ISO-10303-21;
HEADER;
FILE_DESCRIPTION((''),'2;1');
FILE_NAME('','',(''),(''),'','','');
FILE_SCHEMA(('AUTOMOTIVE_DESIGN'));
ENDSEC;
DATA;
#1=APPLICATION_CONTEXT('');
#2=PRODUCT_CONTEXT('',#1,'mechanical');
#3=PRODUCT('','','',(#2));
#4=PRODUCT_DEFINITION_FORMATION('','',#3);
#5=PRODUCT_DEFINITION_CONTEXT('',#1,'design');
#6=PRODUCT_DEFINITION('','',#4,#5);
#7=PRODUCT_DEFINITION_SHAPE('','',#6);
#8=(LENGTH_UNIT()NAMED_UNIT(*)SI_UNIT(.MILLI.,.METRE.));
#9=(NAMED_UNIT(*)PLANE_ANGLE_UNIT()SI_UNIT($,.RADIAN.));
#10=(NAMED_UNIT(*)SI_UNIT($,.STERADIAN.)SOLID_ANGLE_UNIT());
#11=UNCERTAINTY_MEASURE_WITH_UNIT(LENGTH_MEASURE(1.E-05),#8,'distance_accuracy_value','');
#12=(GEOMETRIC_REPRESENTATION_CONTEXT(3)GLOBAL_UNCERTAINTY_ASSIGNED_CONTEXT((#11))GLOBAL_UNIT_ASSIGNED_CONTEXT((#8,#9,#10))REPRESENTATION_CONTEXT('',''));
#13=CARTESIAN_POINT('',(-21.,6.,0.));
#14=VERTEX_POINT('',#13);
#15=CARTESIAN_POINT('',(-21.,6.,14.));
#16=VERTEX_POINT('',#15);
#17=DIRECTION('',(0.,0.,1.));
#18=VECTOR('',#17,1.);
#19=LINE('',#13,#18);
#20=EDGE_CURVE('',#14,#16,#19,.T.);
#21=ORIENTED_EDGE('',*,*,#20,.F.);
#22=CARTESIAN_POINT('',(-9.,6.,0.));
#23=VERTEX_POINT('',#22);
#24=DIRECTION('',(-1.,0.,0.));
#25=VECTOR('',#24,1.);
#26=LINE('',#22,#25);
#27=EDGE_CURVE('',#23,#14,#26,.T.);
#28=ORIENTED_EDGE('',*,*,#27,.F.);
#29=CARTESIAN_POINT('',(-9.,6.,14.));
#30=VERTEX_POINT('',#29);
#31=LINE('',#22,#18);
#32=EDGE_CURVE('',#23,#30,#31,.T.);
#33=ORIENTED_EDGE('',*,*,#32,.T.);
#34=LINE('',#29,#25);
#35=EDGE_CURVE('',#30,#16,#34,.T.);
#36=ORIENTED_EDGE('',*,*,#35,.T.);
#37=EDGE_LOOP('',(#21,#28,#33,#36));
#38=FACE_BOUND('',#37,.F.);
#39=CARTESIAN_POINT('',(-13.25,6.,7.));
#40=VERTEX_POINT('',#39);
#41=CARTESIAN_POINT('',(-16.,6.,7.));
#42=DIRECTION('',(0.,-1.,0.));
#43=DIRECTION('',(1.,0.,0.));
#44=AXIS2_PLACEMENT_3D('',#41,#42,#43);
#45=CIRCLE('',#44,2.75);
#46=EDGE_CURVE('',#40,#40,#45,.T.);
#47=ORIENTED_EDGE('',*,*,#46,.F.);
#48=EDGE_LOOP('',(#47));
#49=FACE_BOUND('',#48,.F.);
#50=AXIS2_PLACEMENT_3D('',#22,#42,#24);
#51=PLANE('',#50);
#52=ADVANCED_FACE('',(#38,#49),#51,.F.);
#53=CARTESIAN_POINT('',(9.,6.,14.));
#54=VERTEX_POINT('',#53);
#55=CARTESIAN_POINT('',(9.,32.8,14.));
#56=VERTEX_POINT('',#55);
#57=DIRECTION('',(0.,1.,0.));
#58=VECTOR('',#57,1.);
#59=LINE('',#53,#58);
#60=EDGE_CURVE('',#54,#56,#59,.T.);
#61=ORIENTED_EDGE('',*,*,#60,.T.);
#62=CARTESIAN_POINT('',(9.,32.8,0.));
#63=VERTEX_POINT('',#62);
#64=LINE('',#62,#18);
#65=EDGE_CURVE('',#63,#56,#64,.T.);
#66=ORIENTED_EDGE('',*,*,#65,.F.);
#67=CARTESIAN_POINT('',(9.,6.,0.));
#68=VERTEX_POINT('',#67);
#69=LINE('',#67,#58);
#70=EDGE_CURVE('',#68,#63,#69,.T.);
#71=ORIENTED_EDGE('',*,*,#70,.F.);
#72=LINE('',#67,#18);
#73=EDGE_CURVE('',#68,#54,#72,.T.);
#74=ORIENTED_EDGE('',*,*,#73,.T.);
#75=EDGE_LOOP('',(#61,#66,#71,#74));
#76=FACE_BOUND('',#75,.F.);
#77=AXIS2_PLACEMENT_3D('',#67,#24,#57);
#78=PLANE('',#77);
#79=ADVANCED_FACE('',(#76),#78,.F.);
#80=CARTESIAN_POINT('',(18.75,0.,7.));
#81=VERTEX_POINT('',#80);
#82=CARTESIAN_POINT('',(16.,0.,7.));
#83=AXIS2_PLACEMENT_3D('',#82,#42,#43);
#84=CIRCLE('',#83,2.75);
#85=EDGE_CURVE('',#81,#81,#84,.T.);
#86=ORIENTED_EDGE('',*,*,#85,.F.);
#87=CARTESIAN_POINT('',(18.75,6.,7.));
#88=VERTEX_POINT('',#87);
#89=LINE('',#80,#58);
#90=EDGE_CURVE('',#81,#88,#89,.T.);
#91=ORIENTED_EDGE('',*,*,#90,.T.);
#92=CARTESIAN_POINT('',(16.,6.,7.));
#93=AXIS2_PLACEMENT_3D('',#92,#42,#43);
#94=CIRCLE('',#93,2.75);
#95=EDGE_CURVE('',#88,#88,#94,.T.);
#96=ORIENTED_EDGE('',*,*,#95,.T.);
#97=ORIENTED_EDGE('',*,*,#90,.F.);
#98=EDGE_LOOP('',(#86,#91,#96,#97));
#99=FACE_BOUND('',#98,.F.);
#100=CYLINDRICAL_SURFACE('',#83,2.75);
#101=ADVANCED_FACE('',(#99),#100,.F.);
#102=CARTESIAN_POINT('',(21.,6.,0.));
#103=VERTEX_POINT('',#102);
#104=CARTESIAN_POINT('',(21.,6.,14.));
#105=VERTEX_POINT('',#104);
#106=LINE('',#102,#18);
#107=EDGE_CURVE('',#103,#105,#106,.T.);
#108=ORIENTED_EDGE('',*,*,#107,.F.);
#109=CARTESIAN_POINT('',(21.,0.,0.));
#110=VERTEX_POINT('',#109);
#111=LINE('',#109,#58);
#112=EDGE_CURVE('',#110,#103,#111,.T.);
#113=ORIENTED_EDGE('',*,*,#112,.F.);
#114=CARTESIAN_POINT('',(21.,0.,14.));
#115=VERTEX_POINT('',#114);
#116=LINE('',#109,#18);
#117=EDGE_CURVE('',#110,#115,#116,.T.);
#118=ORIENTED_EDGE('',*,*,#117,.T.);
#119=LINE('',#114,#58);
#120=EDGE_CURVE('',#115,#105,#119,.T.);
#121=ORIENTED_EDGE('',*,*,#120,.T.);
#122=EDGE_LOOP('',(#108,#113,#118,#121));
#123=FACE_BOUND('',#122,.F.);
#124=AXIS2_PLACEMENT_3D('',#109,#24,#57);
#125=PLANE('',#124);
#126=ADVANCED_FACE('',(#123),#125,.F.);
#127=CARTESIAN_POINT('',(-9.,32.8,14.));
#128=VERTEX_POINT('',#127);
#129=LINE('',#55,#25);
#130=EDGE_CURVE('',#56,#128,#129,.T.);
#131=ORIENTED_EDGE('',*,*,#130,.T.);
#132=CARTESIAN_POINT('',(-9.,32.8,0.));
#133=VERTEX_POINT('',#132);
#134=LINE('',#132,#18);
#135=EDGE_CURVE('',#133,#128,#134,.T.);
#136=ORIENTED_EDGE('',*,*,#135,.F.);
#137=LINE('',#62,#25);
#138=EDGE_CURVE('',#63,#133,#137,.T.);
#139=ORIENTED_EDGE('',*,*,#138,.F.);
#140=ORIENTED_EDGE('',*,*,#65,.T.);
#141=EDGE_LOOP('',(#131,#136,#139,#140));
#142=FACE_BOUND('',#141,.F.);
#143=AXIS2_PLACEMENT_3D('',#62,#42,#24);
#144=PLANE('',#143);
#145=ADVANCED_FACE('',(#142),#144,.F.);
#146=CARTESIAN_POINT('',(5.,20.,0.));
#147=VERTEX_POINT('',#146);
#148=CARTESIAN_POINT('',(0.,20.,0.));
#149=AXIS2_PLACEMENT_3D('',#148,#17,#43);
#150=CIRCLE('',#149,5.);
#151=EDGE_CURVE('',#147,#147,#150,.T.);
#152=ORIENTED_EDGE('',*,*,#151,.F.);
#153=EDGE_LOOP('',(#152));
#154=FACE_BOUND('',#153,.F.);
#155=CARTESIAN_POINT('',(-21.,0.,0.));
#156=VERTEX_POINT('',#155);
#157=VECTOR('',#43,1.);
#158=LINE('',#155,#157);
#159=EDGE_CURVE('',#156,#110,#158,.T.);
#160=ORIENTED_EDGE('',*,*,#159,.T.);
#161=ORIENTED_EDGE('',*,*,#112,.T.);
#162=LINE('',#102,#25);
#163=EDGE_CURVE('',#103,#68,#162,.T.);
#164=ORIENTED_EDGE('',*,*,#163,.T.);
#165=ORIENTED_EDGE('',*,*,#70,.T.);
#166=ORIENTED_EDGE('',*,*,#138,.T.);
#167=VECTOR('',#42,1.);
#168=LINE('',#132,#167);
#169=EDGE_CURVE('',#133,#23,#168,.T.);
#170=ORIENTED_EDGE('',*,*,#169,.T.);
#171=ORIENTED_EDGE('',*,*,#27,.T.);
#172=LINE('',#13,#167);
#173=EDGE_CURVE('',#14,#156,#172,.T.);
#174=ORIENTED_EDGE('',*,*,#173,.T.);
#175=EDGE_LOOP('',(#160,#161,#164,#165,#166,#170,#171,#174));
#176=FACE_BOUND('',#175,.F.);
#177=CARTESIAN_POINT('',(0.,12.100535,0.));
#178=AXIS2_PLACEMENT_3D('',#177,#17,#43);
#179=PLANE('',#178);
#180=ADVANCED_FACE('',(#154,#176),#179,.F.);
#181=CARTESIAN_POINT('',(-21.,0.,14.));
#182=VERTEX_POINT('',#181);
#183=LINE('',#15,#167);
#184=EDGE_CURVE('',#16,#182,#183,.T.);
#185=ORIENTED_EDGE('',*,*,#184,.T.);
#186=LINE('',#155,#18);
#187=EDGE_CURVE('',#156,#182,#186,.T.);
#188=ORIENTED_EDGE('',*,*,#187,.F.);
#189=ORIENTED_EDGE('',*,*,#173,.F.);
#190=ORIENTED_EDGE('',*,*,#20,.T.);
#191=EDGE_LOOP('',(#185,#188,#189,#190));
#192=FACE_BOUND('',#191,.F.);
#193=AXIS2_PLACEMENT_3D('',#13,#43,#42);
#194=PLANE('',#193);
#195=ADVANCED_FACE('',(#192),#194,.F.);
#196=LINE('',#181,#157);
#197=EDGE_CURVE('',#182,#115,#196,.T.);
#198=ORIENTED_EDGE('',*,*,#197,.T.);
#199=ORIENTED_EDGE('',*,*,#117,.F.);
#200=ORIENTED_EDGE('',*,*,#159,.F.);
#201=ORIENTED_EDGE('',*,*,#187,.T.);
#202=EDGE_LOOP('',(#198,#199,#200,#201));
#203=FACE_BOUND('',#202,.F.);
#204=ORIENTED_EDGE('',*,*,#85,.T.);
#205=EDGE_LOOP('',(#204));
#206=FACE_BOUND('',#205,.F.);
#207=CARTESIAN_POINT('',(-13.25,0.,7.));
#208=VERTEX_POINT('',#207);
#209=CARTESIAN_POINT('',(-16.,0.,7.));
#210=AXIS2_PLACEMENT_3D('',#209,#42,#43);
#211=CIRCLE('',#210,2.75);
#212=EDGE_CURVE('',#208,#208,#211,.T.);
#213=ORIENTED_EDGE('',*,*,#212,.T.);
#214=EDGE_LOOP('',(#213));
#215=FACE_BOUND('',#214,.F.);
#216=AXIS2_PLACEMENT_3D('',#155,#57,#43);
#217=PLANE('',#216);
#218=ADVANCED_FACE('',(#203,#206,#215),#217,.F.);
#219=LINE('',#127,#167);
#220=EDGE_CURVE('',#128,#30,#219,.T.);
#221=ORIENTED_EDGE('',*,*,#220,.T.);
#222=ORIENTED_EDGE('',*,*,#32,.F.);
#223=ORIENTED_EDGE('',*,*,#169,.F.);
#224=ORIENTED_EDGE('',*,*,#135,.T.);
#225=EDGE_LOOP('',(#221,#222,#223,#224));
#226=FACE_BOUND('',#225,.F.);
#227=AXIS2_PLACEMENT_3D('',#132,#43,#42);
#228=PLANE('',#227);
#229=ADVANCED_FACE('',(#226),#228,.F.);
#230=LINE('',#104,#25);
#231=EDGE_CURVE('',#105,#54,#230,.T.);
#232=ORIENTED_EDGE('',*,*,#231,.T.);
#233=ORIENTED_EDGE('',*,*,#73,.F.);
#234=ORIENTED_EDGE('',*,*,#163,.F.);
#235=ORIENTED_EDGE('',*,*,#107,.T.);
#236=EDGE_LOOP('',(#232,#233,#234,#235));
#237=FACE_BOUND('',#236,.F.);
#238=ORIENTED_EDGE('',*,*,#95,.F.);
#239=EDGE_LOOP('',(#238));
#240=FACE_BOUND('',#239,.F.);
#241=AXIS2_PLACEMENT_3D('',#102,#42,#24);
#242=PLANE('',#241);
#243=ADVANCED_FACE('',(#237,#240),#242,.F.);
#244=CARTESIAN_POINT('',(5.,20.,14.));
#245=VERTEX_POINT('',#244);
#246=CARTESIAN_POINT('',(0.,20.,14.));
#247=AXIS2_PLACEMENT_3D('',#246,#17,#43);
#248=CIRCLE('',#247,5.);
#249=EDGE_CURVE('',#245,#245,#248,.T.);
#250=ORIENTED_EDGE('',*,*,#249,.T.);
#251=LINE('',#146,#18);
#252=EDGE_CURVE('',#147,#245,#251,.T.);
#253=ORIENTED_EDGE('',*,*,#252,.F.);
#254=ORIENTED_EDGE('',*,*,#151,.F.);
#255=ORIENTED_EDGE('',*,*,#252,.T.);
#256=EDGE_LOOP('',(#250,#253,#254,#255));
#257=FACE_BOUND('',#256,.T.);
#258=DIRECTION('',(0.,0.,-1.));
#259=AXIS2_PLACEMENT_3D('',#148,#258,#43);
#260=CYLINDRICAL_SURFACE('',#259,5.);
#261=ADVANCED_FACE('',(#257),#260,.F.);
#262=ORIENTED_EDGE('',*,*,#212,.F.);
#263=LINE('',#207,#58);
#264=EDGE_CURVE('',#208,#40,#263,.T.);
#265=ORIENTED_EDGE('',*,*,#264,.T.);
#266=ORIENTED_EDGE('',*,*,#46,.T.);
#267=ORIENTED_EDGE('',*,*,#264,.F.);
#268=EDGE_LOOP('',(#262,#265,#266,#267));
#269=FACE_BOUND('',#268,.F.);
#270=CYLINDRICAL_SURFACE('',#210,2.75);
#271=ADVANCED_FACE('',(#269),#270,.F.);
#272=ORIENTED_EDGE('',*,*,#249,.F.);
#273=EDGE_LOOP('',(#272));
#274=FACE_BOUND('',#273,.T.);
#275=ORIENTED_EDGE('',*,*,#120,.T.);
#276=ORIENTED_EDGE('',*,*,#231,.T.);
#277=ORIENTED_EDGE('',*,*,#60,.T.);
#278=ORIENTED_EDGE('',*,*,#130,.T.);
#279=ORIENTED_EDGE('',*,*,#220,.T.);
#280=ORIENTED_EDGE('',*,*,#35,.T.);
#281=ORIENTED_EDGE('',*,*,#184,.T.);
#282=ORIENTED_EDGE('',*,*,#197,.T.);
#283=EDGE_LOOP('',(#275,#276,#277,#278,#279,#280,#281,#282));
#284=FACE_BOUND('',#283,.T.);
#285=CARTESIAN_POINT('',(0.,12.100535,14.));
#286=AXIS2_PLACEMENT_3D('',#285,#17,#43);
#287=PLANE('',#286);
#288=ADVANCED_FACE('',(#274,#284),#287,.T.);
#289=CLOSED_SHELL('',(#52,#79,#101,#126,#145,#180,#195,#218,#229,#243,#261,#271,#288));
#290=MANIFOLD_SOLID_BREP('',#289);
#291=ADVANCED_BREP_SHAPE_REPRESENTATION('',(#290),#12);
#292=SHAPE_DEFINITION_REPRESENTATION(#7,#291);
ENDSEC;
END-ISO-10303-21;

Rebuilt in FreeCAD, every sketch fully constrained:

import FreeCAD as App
import Part
import Sketcher

doc = App.newDocument("Part")
body = doc.addObject("PartDesign::Body", "Body")

# Sketch on XY plane
sketch1 = body.newObject("Sketcher::SketchObject", "Sketch")
sketch1.AttachmentSupport = (doc.getObject("XY_Plane"), [""])
sketch1.MapMode = "FlatFace"
sketch1.addGeometry([
    Part.LineSegment(App.Vector(9, 33, 0), App.Vector(-9, 33, 0)),  # 0
    Part.LineSegment(App.Vector(-9, 33, 0), App.Vector(-9, 6, 0)),  # 1
    Part.LineSegment(App.Vector(-9, 6, 0), App.Vector(-21, 6, 0)),  # 2
    Part.LineSegment(App.Vector(-21, 6, 0), App.Vector(-21, 0, 0)),  # 3
    Part.LineSegment(App.Vector(-21, 0, 0), App.Vector(21, 0, 0)),  # 4
    Part.LineSegment(App.Vector(21, 0, 0), App.Vector(21, 6, 0)),  # 5
    Part.LineSegment(App.Vector(21, 6, 0), App.Vector(9, 6, 0)),  # 6
    Part.LineSegment(App.Vector(9, 6, 0), App.Vector(9, 33, 0)),  # 7
    Part.Circle(App.Vector(0, 20, 0), App.Vector(0, 0, 1), 5),  # 8
], False)
sketch1.addConstraint([
    Sketcher.Constraint("Coincident", 0, 2, 1, 1),
    Sketcher.Constraint("Coincident", 1, 2, 2, 1),
    Sketcher.Constraint("Coincident", 2, 2, 3, 1),
    Sketcher.Constraint("Coincident", 3, 2, 4, 1),
    Sketcher.Constraint("Coincident", 4, 2, 5, 1),
    Sketcher.Constraint("Coincident", 5, 2, 6, 1),
    Sketcher.Constraint("Coincident", 6, 2, 7, 1),
    Sketcher.Constraint("Coincident", 7, 2, 0, 1),
    Sketcher.Constraint("Horizontal", 0),
    Sketcher.Constraint("Vertical", 1),
    Sketcher.Constraint("Horizontal", 2),
    Sketcher.Constraint("Vertical", 3),
    Sketcher.Constraint("Horizontal", 4),
    Sketcher.Constraint("Vertical", 5),
    Sketcher.Constraint("Horizontal", 6),
    Sketcher.Constraint("Vertical", 7),
    Sketcher.Constraint("Symmetric", 3, 2, 4, 2, -1, 1),
    Sketcher.Constraint("Symmetric", 1, 2, 6, 2, -2),
    Sketcher.Constraint("PointOnObject", 8, 3, -2),
    Sketcher.Constraint("Diameter", 8, 10.0),
    Sketcher.Constraint("DistanceX", 0, 2, 0, 1, 18.0),
    Sketcher.Constraint("DistanceX", 2, 2, 2, 1, 12.0),
    Sketcher.Constraint("DistanceY", 3, 2, 3, 1, 6.0),
    Sketcher.Constraint("DistanceY", 1, 2, 1, 1, 26.8),
    Sketcher.Constraint("DistanceY", -1, 1, 8, 3, 20.0),
])
pad1 = body.newObject("PartDesign::Pad", "Pad")
pad1.Profile = sketch1
pad1.Length = 14

# Sketch on XZ plane
sketch2 = body.newObject("Sketcher::SketchObject", "Sketch001")
sketch2.AttachmentSupport = (doc.getObject("XZ_Plane"), [""])
sketch2.MapMode = "FlatFace"
sketch2.addGeometry([
    Part.Circle(App.Vector(-16, 7, 0), App.Vector(0, 0, 1), 2.8),
    Part.Circle(App.Vector(16, 7, 0), App.Vector(0, 0, 1), 2.8),
], False)
sketch2.addConstraint([
    Sketcher.Constraint("Equal", 0, 1),
    Sketcher.Constraint("Symmetric", 0, 3, 1, 3, -2),
    Sketcher.Constraint("Diameter", 0, 5.5),
    Sketcher.Constraint("DistanceX", 0, 3, -1, 1, 16.0),
    Sketcher.Constraint("DistanceY", -1, 1, 0, 3, 7.0),
])
pocket1 = body.newObject("PartDesign::Pocket", "Pocket")
pocket1.Profile = sketch2
pocket1.Length = 6

doc.recompute()
